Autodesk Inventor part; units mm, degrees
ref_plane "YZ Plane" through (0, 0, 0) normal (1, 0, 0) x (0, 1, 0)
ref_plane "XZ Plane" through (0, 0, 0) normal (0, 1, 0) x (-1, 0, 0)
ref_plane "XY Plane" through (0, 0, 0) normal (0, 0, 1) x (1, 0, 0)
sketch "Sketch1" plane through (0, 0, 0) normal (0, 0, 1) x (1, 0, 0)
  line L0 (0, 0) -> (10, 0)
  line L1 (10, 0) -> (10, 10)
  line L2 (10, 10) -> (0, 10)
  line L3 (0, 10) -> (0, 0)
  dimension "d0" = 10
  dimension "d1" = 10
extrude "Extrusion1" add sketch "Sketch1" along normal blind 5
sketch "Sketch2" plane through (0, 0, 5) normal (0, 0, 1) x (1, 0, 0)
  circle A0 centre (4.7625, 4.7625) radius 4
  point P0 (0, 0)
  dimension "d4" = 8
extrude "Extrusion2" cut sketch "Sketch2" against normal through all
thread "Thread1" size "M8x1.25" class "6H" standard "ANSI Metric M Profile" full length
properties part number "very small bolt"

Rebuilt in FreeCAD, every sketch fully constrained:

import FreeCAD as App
import Part
import Sketcher

V = App.Vector

doc = App.newDocument("Part")
body = doc.addObject("PartDesign::Body", "Body")

# Sketch on XY plane
sketch1 = body.newObject("Sketcher::SketchObject", "Sketch")
sketch1.AttachmentSupport = (doc.getObject("XY_Plane"), [""])
sketch1.MapMode = "FlatFace"
sketch1.addGeometry(Part.LineSegment(V(0, 10, 0), V(0, 0, 0)), False)
sketch1.addGeometry(Part.LineSegment(V(0, 0, 0), V(10, 0, 0)), False)
sketch1.addGeometry(Part.LineSegment(V(10, 0, 0), V(10, 10, 0)), False)
sketch1.addGeometry(Part.LineSegment(V(10, 10, 0), V(0, 10, 0)), False)
sketch1.addConstraint(Sketcher.Constraint("Coincident", 0, 2, 1, 1))
sketch1.addConstraint(Sketcher.Constraint("Coincident", 1, 2, 2, 1))
sketch1.addConstraint(Sketcher.Constraint("Coincident", 2, 2, 3, 1))
sketch1.addConstraint(Sketcher.Constraint("Coincident", 3, 2, 0, 1))
sketch1.addConstraint(Sketcher.Constraint("Vertical", 0))
sketch1.addConstraint(Sketcher.Constraint("Horizontal", 1))
sketch1.addConstraint(Sketcher.Constraint("Vertical", 2))
sketch1.addConstraint(Sketcher.Constraint("Horizontal", 3))
sketch1.addConstraint(Sketcher.Constraint("Coincident", 0, 2, -1, 1))
sketch1.addConstraint(Sketcher.Constraint("Equal", 3, 0))
sketch1.addConstraint(Sketcher.Constraint("DistanceX", 1, 1, 1, 2, 10.0))
pad1 = body.newObject("PartDesign::Pad", "Pad")
pad1.Profile = sketch1
pad1.Length = 5

# Sketch on XY plane
sketch2 = body.newObject("Sketcher::SketchObject", "Sketch001")
sketch2.AttachmentSupport = (doc.getObject("XY_Plane"), [""])
sketch2.MapMode = "FlatFace"
sketch2.AttachmentOffset = App.Placement(V(0, 0, 5), App.Rotation())
sketch2.addGeometry(Part.Circle(V(4.8, 4.8, 0), V(0, 0, 1), 4), False)
sketch2.addConstraint(Sketcher.Constraint("Diameter", 0, 8.0))
sketch2.addConstraint(Sketcher.Constraint("DistanceX", -1, 1, 0, 3, 4.7625))
sketch2.addConstraint(Sketcher.Constraint("DistanceY", -1, 1, 0, 3, 4.7625))
pocket1 = body.newObject("PartDesign::Pocket", "Pocket")
pocket1.Profile = sketch2
pocket1.Type = "ThroughAll"

doc.recompute()
